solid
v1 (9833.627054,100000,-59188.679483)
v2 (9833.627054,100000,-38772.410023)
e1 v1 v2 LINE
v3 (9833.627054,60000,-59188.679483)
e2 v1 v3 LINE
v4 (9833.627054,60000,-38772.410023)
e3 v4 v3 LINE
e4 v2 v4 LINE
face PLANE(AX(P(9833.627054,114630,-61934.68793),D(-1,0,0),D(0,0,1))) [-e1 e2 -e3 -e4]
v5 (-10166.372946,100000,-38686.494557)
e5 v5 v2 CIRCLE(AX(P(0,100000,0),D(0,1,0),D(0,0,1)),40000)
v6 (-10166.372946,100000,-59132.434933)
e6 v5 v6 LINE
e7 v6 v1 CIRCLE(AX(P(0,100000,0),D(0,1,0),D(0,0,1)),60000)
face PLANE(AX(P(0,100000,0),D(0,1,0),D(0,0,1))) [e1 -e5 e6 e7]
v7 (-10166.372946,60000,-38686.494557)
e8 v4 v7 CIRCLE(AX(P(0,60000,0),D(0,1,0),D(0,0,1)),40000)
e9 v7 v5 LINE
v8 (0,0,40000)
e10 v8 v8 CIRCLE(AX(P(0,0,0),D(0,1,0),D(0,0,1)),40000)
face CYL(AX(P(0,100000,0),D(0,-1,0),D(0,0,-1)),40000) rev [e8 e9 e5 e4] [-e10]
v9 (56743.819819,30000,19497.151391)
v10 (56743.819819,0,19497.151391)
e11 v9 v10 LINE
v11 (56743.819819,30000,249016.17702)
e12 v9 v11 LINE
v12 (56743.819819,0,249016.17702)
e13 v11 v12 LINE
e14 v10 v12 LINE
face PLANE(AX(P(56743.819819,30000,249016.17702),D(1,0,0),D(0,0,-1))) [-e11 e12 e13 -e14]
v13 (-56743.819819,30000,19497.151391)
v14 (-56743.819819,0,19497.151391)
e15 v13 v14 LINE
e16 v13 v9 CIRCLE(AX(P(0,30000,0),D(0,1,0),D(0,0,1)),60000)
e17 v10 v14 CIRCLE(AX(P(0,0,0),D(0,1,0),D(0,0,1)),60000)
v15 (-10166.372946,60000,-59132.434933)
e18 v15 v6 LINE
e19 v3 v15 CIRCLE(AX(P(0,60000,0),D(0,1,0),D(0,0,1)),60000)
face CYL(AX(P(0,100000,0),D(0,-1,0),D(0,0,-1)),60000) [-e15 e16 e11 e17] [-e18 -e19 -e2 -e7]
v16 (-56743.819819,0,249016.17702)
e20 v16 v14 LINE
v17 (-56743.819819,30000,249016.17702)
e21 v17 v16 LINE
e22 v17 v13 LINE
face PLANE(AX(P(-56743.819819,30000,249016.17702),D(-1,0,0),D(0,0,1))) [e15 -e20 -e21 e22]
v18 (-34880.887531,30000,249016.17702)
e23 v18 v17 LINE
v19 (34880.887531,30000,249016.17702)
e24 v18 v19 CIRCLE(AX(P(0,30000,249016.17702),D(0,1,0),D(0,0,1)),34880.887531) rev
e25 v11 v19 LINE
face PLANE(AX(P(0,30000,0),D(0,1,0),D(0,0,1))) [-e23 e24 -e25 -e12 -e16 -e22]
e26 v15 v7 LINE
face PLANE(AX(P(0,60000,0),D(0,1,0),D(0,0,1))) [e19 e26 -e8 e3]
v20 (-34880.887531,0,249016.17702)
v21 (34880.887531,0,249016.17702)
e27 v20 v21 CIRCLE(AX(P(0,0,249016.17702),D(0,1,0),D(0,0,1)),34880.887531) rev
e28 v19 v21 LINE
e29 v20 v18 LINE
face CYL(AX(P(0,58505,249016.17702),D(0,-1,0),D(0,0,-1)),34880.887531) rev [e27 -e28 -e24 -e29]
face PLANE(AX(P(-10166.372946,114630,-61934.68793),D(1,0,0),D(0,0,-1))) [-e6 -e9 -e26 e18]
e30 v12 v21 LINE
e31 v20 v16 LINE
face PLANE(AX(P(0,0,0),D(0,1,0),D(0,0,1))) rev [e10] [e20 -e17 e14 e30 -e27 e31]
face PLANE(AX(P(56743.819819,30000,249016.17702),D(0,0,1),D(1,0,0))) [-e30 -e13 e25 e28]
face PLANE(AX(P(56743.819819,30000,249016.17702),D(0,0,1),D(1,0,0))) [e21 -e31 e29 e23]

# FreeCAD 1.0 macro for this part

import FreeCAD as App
import Part
import Sketcher
Q = App.Units.Quantity

doc = App.newDocument("Part")
params = doc.addObject("Spreadsheet::Sheet", "Params")
for row, (alias, value) in enumerate([
    ("sketch1_diameter", "120000 mm"),
    ("sketch1_diameter2", "80000 mm"),
    ("pad1_length", "100000 mm"),
    ("sketch2_width", "20000 mm"),
    ("pocket1_length", "14630 mm"),
    ("pocket1_length2", "40000 mm"),
    ("pad2_length", "30000 mm"),
    ("sketch5_diameter", "80000 mm"),
], start=1):
    params.set(f"A{row}", alias)
    params.set(f"B{row}", "=" + value)
    params.setAlias(f"B{row}", alias)

body = doc.addObject("PartDesign::Body", "Body")

# Sketch on XZ plane
sketch1 = body.newObject("Sketcher::SketchObject", "Sketch")
sketch1.AttachmentSupport = (doc.getObject("XZ_Plane"), [""])
sketch1.MapMode = "FlatFace"
sketch1.addGeometry([
    Part.Circle(App.Vector(0, 0, 0), App.Vector(0, 0, 1), 60000),
    Part.Circle(App.Vector(0, 0, 0), App.Vector(0, 0, 1), 40000),
], False)
sketch1.addConstraint([
    Sketcher.Constraint("Coincident", 0, 3, -1, 1),
    Sketcher.Constraint("Coincident", 1, 3, -1, 1),
    Sketcher.Constraint("Diameter", 0, Q("120000 mm")),
    Sketcher.Constraint("Diameter", 1, Q("80000 mm")),
])
sketch1.setExpression("Constraints[2]", "Params.sketch1_diameter")
sketch1.setExpression("Constraints[3]", "Params.sketch1_diameter2")
pad1 = body.newObject("PartDesign::Pad", "Pad")
pad1.Profile = sketch1
pad1.setExpression("Length", "Params.pad1_length")
pad1.Reversed = True

# Sketch on XZ plane
sketch2 = body.newObject("Sketcher::SketchObject", "Sketch001")
sketch2.AttachmentSupport = (doc.getObject("XZ_Plane"), [""])
sketch2.MapMode = "FlatFace"
sketch2.AttachmentOffset = App.Placement(App.Vector(0, 0, -100000), App.Rotation())
sketch2.addGeometry([
    Part.LineSegment(App.Vector(-10166.372946, -61934.68793, 0), App.Vector(-10166.372946, -8183.417558, 0)),
    Part.LineSegment(App.Vector(-10166.372946, -8183.417558, 0), App.Vector(9833.627054, -8183.417558, 0)),
    Part.LineSegment(App.Vector(9833.627054, -8183.417558, 0), App.Vector(9833.627054, -61934.68793, 0)),
    Part.LineSegment(App.Vector(9833.627054, -61934.68793, 0), App.Vector(-10166.372946, -61934.68793, 0)),
], False)
sketch2.addConstraint([
    Sketcher.Constraint("Coincident", 0, 2, 1, 1),
    Sketcher.Constraint("Coincident", 1, 2, 2, 1),
    Sketcher.Constraint("Coincident", 2, 2, 3, 1),
    Sketcher.Constraint("Coincident", 3, 2, 0, 1),
    Sketcher.Constraint("Vertical", 0),
    Sketcher.Constraint("Horizontal", 1),
    Sketcher.Constraint("Vertical", 2),
    Sketcher.Constraint("Horizontal", 3),
    Sketcher.Constraint("DistanceX", 1, 1, 1, 2, Q("20000 mm")),
    Sketcher.Constraint("DistanceY", 0, 1, 0, 2, Q("53751.270372 mm")),
    Sketcher.Constraint("DistanceY", 2, 2, -1, 1, Q("61934.68793 mm")),
    Sketcher.Constraint("DistanceX", 0, 2, -1, 1, Q("10166.372946 mm")),
])
sketch2.setExpression("Constraints[8]", "Params.sketch2_width")
pocket1 = body.newObject("PartDesign::Pocket", "Pocket")
pocket1.Profile = sketch2
pocket1.Type = "TwoLengths"
pocket1.setExpression("Length", "Params.pocket1_length")
pocket1.setExpression("Length2", "Params.pocket1_length2")

# Sketch on XZ plane
sketch3 = body.newObject("Sketcher::SketchObject", "Sketch002")
sketch3.AttachmentSupport = (doc.getObject("XZ_Plane"), [""])
sketch3.MapMode = "FlatFace"
sketch3.addGeometry([
    Part.LineSegment(App.Vector(-56743.819819, 249016.17702, 0), App.Vector(-56743.819819, 19497.151391, 0)),
    Part.LineSegment(App.Vector(-56743.819819, 19497.151391, 0), App.Vector(56743.819819, 19497.151391, 0)),
    Part.LineSegment(App.Vector(56743.819819, 19497.151391, 0), App.Vector(56743.819819, 249016.17702, 0)),
    Part.LineSegment(App.Vector(56743.819819, 249016.17702, 0), App.Vector(-56743.819819, 249016.17702, 0)),
], False)
sketch3.addConstraint([
    Sketcher.Constraint("Coincident", 0, 2, 1, 1),
    Sketcher.Constraint("Coincident", 1, 2, 2, 1),
    Sketcher.Constraint("Coincident", 2, 2, 3, 1),
    Sketcher.Constraint("Coincident", 3, 2, 0, 1),
    Sketcher.Constraint("Vertical", 0),
    Sketcher.Constraint("Horizontal", 1),
    Sketcher.Constraint("Vertical", 2),
    Sketcher.Constraint("Horizontal", 3),
    Sketcher.Constraint("DistanceY", 0, 2, 0, 1, Q("229519.02563 mm")),
    Sketcher.Constraint("DistanceX", 1, 1, 1, 2, Q("113487.639638 mm")),
    Sketcher.Constraint("DistanceX", 0, 2, -1, 1, Q("56743.819819 mm")),
    Sketcher.Constraint("DistanceY", -1, 1, 0, 2, Q("19497.151391 mm")),
])
pad2 = body.newObject("PartDesign::Pad", "Pad001")
pad2.Profile = sketch3
pad2.setExpression("Length", "Params.pad2_length")
pad2.Reversed = True

# Sketch on XZ plane
sketch4 = body.newObject("Sketcher::SketchObject", "Sketch003")
sketch4.AttachmentSupport = (doc.getObject("XZ_Plane"), [""])
sketch4.MapMode = "FlatFace"
sketch4.AttachmentOffset = App.Placement(App.Vector(0, 0, -30000), App.Rotation())
sketch4.addGeometry(Part.Circle(App.Vector(0, 249016.17702, 0), App.Vector(0, 0, 1), 34880.887531), False)
sketch4.addConstraint([
    Sketcher.Constraint("PointOnObject", 0, 3, -2),
    Sketcher.Constraint("Diameter", 0, Q("69761.775061 mm")),
    Sketcher.Constraint("DistanceY", -1, 1, 0, 3, Q("249016.17702 mm")),
])
pocket2 = body.newObject("PartDesign::Pocket", "Pocket001")
pocket2.Profile = sketch4
pocket2.Type = "ThroughAll"
pocket2.Midplane = True

# Sketch on XZ plane
sketch5 = body.newObject("Sketcher::SketchObject", "Sketch004")
sketch5.AttachmentSupport = (doc.getObject("XZ_Plane"), [""])
sketch5.MapMode = "FlatFace"
sketch5.AttachmentOffset = App.Placement(App.Vector(0, 0, -30000), App.Rotation())
sketch5.addGeometry(Part.Circle(App.Vector(0, 0, 0), App.Vector(0, 0, 1), 40000), False)
sketch5.addConstraint([
    Sketcher.Constraint("Coincident", 0, 3, -1, 1),
    Sketcher.Constraint("Diameter", 0, Q("80000 mm")),
])
sketch5.setExpression("Constraints[1]", "Params.sketch5_diameter")
pocket3 = body.newObject("PartDesign::Pocket", "Pocket002")
pocket3.Profile = sketch5
pocket3.Type = "ThroughAll"
pocket3.Midplane = True

doc.recompute()
